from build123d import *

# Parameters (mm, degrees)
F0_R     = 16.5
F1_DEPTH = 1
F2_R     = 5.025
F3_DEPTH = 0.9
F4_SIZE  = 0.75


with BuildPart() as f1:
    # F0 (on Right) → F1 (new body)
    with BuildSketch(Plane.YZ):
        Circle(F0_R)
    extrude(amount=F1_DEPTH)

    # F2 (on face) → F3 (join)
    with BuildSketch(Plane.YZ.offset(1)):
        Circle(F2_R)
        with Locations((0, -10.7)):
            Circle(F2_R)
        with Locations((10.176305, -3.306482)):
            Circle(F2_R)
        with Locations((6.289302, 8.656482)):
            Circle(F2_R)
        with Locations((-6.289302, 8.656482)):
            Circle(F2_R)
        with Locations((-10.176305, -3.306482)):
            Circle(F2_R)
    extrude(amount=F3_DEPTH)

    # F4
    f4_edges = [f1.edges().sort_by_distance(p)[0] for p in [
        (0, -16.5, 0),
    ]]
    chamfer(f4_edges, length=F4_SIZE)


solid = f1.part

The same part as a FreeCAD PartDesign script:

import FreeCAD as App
import Part
import Sketcher
Q = App.Units.Quantity


def edges_at(feature, points):
    """Names of the edges that pass closest to the given points."""
    edges = feature.Shape.Edges
    near = lambda p: min(range(len(edges)), key=lambda i: edges[i].distToShape(Part.Vertex(*p))[0])
    return sorted({f"Edge{near(p) + 1}" for p in points})

doc = App.newDocument("Part")
body = doc.addObject("PartDesign::Body", "Body")

sketch1 = body.newObject("Sketcher::SketchObject", "Sketch")
sketch1.AttachmentSupport = (doc.getObject("YZ_Plane"), [""])
sketch1.MapMode = "FlatFace"
sketch1.addGeometry(Part.Circle(App.Vector(0, 0, 0), App.Vector(0, 0, 1), 16), False)
sketch1.addConstraint([
    Sketcher.Constraint("Coincident", 0, 3, -1, 1),
    Sketcher.Constraint("Diameter", 0, Q("33 mm")),
])
pad1 = body.newObject("PartDesign::Pad", "Pad")
pad1.Profile = sketch1
pad1.Length = 1

sketch2 = body.newObject("Sketcher::SketchObject", "Sketch001")
sketch2.AttachmentSupport = (doc.getObject("YZ_Plane"), [""])
sketch2.MapMode = "FlatFace"
sketch2.AttachmentOffset = App.Placement(App.Vector(0, 0, 1), App.Rotation())
sketch2.addGeometry([
    Part.Circle(App.Vector(0, 0, 0), App.Vector(0, 0, 1), 5),
    Part.Circle(App.Vector(0, -11, 0), App.Vector(0, 0, 1), 5),
    Part.Circle(App.Vector(10, -3, 0), App.Vector(0, 0, 1), 5),
    Part.Circle(App.Vector(6, 9, 0), App.Vector(0, 0, 1), 5),
    Part.Circle(App.Vector(-6, 9, 0), App.Vector(0, 0, 1), 5),
    Part.Circle(App.Vector(-10, -3, 0), App.Vector(0, 0, 1), 5),
], False)
sketch2.addConstraint([
    Sketcher.Constraint("Coincident", 0, 3, -1, 1),
    Sketcher.Constraint("Equal", 0, 1),
    Sketcher.Constraint("Equal", 1, 2),
    Sketcher.Constraint("Equal", 2, 3),
    Sketcher.Constraint("Equal", 3, 4),
    Sketcher.Constraint("Equal", 4, 5),
    Sketcher.Constraint("Symmetric", 3, 3, 4, 3, -2),
    Sketcher.Constraint("Symmetric", 2, 3, 5, 3, -2),
    Sketcher.Constraint("PointOnObject", 1, 3, -2),
    Sketcher.Constraint("Diameter", 0, Q("10.05 mm")),
    Sketcher.Constraint("DistanceY", 1, 3, -1, 1, Q("10.7 mm")),
    Sketcher.Constraint("DistanceY", 2, 3, -1, 1, Q("3.306482 mm")),
    Sketcher.Constraint("DistanceY", 1, 3, 3, 3, Q("19.356482 mm")),
    Sketcher.Constraint("DistanceX", 5, 3, 2, 3, Q("20.35261 mm")),
    Sketcher.Constraint("DistanceX", -1, 1, 3, 3, Q("6.289302 mm")),
])
pad2 = body.newObject("PartDesign::Pad", "Pad001")
pad2.Profile = sketch2
pad2.Length = 0.9
doc.recompute()

chamfer = body.newObject("PartDesign::Chamfer", "Chamfer")
chamfer.Base = (pad2, edges_at(pad2, [(0, -16.5, 0)]))
chamfer.Size = 0.75

doc.recompute()
